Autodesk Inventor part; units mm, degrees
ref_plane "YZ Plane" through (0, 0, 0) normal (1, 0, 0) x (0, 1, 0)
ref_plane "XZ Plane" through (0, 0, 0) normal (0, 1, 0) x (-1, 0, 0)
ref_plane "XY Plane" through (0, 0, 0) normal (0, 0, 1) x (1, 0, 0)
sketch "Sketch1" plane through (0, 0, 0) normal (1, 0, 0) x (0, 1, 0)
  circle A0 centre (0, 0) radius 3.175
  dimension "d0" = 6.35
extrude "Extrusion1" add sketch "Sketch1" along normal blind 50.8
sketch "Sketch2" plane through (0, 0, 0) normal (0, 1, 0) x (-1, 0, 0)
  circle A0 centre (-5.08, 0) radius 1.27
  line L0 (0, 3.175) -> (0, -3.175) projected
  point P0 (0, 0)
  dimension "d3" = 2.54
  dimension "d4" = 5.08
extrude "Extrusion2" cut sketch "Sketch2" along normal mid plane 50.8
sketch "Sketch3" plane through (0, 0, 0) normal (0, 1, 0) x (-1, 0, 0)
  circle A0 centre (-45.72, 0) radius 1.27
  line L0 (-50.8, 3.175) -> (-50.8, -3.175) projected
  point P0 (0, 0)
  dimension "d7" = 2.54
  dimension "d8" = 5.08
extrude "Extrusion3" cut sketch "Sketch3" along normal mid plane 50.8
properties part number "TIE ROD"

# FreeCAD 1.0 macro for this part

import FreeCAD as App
import Part
import Sketcher

V = App.Vector
Q = App.Units.Quantity

doc = App.newDocument("Part")
params = doc.addObject("Spreadsheet::Sheet", "Params")
for row, (alias, value) in enumerate([
    ("sketch1_diameter", "0.25 in"),
    ("pad1_length", "2 in"),
    ("sketch2_diameter", "0.1 in"),
    ("pocket1_length", "2 in"),
    ("sketch3_diameter", "0.1 in"),
    ("pocket2_length", "2 in"),
], start=1):
    params.set(f"A{row}", alias)
    params.set(f"B{row}", "=" + value)
    params.setAlias(f"B{row}", alias)

body = doc.addObject("PartDesign::Body", "Body")

sketch1 = body.newObject("Sketcher::SketchObject", "Sketch")
sketch1.AttachmentSupport = (doc.getObject("YZ_Plane"), [""])
sketch1.MapMode = "FlatFace"
sketch1.addGeometry(Part.Circle(V(0, 0, 0), V(0, 0, 1), 3.2), False)
sketch1.addConstraint([
    Sketcher.Constraint("Coincident", 0, 3, -1, 1),
    Sketcher.Constraint("Diameter", 0, Q("0.25 in")),
])
sketch1.setExpression("Constraints[1]", "Params.sketch1_diameter")
pad1 = body.newObject("PartDesign::Pad", "Pad")
pad1.Profile = sketch1
pad1.setExpression("Length", "Params.pad1_length")

sketch2 = body.newObject("Sketcher::SketchObject", "Sketch001")
sketch2.AttachmentSupport = (doc.getObject("XZ_Plane"), [""])
sketch2.MapMode = "FlatFace"
sketch2.addGeometry(Part.Circle(V(5.1, 0, 0), V(0, 0, 1), 1.3), False)
sketch2.addConstraint([
    Sketcher.Constraint("PointOnObject", 0, 3, -1),
    Sketcher.Constraint("Diameter", 0, Q("0.1 in")),
    Sketcher.Constraint("DistanceX", -1, 1, 0, 3, Q("0.2 in")),
])
sketch2.setExpression("Constraints[1]", "Params.sketch2_diameter")
pocket1 = body.newObject("PartDesign::Pocket", "Pocket")
pocket1.Profile = sketch2
pocket1.setExpression("Length", "Params.pocket1_length")
pocket1.Midplane = True

sketch3 = body.newObject("Sketcher::SketchObject", "Sketch002")
sketch3.AttachmentSupport = (doc.getObject("XZ_Plane"), [""])
sketch3.MapMode = "FlatFace"
sketch3.addGeometry(Part.Circle(V(45.7, 0, 0), V(0, 0, 1), 1.3), False)
sketch3.addConstraint([
    Sketcher.Constraint("PointOnObject", 0, 3, -1),
    Sketcher.Constraint("Diameter", 0, Q("0.1 in")),
    Sketcher.Constraint("DistanceX", -1, 1, 0, 3, Q("1.8 in")),
])
sketch3.setExpression("Constraints[1]", "Params.sketch3_diameter")
pocket2 = body.newObject("PartDesign::Pocket", "Pocket001")
pocket2.Profile = sketch3
pocket2.setExpression("Length", "Params.pocket2_length")
pocket2.Midplane = True

doc.recompute()
